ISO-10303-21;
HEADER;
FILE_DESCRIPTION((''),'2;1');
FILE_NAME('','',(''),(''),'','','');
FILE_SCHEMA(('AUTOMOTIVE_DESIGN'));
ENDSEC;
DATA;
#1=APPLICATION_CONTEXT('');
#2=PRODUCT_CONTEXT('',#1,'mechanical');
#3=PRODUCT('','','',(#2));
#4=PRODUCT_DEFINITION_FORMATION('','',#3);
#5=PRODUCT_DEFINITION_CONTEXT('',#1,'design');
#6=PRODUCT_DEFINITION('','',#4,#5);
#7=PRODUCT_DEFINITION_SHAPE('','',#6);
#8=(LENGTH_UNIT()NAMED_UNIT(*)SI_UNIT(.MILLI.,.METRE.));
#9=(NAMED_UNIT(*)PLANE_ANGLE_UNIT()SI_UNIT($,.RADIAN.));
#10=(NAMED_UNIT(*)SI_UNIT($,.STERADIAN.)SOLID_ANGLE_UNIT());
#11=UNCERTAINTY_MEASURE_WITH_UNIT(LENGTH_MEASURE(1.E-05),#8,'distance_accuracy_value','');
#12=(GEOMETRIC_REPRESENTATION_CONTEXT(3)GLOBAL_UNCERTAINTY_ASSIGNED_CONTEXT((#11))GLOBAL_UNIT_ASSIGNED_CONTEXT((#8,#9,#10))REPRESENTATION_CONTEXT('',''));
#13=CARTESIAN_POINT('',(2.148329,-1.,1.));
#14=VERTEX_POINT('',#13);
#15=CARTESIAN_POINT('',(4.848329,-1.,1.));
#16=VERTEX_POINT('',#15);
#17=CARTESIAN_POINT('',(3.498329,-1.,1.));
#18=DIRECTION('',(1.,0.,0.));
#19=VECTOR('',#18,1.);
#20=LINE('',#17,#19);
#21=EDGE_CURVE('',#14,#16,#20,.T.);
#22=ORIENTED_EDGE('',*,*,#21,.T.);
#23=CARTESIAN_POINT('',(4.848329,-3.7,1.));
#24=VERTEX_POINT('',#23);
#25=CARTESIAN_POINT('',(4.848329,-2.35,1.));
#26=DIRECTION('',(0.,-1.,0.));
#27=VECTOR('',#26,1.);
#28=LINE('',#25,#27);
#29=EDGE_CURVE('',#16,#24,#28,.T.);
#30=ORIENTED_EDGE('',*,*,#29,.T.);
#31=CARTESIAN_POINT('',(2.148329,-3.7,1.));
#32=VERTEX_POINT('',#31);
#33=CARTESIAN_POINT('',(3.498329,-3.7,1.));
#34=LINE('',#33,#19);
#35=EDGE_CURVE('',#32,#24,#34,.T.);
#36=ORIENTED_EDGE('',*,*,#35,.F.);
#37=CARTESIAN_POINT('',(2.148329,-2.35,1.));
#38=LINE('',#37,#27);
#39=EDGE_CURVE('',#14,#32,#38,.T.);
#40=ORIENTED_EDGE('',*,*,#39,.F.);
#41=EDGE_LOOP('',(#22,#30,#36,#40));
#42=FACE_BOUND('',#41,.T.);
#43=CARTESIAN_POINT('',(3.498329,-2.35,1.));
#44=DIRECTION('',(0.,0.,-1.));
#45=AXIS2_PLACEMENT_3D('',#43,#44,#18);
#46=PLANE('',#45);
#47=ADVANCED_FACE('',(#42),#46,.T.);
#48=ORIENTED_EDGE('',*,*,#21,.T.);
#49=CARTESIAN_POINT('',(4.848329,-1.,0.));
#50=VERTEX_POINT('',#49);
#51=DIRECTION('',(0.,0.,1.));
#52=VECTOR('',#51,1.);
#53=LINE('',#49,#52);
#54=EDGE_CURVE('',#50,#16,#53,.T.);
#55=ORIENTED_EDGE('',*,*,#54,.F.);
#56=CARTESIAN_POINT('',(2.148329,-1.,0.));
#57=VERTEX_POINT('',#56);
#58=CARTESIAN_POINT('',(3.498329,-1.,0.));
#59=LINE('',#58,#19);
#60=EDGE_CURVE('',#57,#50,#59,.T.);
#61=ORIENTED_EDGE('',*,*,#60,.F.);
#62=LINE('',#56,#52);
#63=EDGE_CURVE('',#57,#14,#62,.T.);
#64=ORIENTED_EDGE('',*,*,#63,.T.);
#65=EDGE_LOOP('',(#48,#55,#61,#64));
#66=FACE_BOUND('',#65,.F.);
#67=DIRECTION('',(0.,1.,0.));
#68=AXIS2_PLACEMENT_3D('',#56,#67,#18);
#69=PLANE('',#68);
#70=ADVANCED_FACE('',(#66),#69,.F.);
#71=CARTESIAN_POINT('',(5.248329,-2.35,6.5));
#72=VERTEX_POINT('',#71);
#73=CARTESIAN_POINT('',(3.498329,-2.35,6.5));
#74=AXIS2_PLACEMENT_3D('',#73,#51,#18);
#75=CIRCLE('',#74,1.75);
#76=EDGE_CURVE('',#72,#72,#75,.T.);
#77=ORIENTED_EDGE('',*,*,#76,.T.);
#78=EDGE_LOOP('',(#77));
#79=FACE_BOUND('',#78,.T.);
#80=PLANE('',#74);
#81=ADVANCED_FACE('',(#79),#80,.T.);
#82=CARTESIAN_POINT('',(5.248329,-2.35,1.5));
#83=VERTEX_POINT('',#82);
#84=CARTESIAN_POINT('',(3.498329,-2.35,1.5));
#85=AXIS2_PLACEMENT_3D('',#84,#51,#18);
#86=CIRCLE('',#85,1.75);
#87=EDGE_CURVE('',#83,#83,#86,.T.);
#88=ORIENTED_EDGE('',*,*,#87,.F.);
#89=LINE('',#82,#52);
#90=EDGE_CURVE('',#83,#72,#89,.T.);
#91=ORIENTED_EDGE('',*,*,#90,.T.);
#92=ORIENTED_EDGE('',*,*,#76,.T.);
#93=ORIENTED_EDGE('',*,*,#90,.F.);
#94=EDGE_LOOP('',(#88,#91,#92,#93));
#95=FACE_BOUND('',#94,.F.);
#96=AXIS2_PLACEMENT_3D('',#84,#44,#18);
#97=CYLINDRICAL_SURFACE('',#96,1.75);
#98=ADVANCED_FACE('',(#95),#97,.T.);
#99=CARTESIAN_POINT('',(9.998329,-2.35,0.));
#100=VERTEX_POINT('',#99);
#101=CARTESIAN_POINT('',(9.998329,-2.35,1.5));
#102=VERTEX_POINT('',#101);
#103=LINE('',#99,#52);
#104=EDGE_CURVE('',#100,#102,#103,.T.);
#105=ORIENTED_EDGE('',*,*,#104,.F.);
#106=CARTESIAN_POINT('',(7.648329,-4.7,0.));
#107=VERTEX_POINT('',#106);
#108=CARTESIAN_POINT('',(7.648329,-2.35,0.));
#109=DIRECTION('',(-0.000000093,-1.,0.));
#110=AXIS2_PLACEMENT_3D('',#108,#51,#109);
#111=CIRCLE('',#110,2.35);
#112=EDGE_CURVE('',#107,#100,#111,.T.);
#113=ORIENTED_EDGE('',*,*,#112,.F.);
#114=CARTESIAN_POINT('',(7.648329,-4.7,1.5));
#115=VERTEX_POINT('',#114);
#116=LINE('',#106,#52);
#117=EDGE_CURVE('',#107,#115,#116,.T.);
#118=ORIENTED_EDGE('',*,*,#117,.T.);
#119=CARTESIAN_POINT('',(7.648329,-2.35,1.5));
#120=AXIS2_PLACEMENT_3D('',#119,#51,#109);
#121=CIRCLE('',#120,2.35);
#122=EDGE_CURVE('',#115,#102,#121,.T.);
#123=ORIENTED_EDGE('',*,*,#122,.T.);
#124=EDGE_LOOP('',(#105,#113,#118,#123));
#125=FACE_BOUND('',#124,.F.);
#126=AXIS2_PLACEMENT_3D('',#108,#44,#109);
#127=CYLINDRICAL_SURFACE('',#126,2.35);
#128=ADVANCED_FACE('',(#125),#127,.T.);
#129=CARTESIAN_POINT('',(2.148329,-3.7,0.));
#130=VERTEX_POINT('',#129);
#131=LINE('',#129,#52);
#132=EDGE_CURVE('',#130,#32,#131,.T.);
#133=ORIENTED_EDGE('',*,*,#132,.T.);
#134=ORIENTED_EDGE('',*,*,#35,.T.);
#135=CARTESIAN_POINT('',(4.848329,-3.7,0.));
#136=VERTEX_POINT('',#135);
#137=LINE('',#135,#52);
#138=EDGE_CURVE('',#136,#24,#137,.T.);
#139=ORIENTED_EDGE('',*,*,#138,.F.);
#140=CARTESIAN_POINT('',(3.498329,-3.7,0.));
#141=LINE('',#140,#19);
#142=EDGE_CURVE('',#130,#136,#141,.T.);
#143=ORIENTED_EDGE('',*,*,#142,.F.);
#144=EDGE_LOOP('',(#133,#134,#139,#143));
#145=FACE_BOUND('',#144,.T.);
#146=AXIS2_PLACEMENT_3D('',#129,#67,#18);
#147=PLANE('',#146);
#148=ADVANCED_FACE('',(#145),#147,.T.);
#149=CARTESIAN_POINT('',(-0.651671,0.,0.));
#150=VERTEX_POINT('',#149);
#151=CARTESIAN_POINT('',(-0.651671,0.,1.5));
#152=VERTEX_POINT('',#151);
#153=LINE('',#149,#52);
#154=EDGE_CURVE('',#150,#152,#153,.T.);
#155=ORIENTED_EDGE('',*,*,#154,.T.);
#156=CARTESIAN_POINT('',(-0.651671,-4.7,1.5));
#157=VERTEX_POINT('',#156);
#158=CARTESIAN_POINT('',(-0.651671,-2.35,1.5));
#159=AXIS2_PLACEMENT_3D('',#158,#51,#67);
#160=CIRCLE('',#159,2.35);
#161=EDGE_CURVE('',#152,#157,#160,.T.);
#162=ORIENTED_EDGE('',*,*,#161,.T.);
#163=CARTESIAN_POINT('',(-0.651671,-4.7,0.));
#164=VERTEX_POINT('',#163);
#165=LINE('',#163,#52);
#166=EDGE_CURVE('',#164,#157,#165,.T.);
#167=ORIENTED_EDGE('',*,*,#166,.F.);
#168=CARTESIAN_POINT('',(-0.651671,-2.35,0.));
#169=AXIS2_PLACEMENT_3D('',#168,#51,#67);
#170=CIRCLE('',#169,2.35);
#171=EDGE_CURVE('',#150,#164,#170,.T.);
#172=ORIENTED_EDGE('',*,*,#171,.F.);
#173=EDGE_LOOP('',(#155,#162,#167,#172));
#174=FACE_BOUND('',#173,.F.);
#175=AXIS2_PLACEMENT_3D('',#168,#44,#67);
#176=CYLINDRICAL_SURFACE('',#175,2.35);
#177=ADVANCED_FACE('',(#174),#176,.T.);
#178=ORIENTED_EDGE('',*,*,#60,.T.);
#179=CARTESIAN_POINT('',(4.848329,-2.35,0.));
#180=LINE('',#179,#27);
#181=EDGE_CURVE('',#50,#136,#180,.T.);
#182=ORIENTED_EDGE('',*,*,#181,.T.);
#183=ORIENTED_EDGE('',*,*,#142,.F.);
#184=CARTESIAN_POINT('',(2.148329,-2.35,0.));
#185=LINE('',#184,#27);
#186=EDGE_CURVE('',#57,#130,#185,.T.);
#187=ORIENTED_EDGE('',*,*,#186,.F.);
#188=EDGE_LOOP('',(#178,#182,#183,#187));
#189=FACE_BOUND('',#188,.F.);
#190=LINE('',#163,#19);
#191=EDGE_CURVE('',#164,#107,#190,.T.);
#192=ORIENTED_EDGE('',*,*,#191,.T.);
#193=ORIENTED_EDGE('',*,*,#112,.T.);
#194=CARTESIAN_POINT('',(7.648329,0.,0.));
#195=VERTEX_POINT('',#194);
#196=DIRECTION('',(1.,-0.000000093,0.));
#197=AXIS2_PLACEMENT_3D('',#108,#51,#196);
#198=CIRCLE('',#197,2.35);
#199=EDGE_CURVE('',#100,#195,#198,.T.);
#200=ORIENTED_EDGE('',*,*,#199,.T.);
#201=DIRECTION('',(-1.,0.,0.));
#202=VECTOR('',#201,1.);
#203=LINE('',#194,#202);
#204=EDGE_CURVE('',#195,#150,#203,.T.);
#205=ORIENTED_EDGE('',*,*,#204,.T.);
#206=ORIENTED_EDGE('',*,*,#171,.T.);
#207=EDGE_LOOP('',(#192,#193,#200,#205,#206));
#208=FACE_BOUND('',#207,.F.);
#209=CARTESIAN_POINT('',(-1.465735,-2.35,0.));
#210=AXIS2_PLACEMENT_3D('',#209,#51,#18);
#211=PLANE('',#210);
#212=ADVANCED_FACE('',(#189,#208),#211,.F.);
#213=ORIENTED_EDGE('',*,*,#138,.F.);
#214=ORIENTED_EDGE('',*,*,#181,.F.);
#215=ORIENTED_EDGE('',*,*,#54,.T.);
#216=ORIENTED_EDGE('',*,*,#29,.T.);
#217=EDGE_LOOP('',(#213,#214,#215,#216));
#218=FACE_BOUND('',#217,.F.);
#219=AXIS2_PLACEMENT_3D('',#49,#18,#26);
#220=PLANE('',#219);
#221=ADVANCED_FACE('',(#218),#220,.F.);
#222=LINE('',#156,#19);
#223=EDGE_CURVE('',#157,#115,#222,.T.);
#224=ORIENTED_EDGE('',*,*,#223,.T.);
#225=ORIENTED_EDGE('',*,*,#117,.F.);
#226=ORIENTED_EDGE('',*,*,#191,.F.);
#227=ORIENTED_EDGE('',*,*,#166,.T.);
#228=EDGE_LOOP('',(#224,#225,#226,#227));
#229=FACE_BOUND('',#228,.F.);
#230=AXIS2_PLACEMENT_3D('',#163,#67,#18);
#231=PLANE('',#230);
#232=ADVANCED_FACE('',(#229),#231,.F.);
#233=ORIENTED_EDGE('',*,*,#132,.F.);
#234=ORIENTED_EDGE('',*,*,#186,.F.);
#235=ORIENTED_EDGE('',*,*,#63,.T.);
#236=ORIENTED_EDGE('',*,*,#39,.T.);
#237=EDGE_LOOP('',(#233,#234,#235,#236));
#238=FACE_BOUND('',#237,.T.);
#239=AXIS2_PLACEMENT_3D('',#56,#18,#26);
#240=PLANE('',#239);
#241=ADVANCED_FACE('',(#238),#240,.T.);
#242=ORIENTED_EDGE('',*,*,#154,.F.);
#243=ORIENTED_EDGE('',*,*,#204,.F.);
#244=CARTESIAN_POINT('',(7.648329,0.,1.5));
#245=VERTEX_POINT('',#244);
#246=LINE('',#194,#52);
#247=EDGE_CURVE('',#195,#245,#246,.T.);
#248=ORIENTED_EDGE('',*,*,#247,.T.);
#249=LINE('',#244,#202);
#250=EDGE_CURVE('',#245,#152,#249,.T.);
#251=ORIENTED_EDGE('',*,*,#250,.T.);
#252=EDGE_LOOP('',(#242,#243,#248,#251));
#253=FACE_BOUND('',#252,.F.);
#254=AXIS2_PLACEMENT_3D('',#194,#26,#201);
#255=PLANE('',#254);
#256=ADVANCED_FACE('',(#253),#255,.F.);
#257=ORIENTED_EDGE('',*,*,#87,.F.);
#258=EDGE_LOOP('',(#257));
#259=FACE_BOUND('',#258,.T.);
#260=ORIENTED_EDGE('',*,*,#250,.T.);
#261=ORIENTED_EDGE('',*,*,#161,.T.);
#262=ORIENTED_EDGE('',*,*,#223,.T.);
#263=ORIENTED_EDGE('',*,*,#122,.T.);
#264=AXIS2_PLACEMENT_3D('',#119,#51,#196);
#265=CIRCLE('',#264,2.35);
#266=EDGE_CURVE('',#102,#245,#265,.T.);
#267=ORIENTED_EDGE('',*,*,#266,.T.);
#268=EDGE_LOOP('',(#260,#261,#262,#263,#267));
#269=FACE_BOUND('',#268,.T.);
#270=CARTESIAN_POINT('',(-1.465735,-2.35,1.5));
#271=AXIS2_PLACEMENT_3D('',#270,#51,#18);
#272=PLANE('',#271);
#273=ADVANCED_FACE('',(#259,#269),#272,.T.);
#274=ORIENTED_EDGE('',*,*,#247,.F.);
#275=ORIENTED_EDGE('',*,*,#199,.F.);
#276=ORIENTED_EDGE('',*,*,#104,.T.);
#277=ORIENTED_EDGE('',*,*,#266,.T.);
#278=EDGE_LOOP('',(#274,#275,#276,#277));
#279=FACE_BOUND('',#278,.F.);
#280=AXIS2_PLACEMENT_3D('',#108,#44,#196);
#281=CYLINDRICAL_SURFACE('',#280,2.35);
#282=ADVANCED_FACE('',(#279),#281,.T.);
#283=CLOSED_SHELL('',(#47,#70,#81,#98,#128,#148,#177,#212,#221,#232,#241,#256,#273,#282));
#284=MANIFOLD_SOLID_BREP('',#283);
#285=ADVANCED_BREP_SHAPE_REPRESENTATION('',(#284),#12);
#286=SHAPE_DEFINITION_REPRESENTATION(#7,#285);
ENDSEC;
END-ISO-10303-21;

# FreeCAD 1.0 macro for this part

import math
import FreeCAD as App
import Part
import Sketcher
from FreeCAD import Vector
Q = App.Units.Quantity


def add_polygon(sketch, points):
    """Adds a closed chain of lines whose ends are joined by coincident constraints."""
    first, n = sketch.GeometryCount, len(points)
    for a, b in zip(points, points[1:] + points[:1]):
        sketch.addGeometry(Part.LineSegment(App.Vector(*a, 0), App.Vector(*b, 0)), False)
    for i in range(n):
        sketch.addConstraint(Sketcher.Constraint("Coincident", first + i, 2, first + (i + 1) % n, 1))

doc = App.newDocument("Part")
body = doc.addObject("PartDesign::Body", "Body")

sketch1 = body.newObject("Sketcher::SketchObject", "Sketch")
sketch1.AttachmentSupport = (doc.getObject("XY_Plane"), [""])
sketch1.MapMode = "FlatFace"
sketch1.addGeometry([
    Part.ArcOfCircle(Part.Circle(Vector(-0.7, -2.4, 0), Vector(0, 0, 1), 2.4), math.radians(90), math.radians(270)),
    Part.LineSegment(Vector(-0.7, -4.7, 0), Vector(7.6, -4.7, 0)),
    Part.ArcOfCircle(Part.Circle(Vector(7.6, -2.4, 0), Vector(0, 0, 1), 2.3), math.radians(-90), math.radians(0)),
    Part.ArcOfCircle(Part.Circle(Vector(7.6, -2.3, 0), Vector(0, 0, 1), 2.3), math.radians(0), math.radians(90)),
    Part.LineSegment(Vector(7.6, 0, 0), Vector(-0.7, 0, 0)),
], False)
sketch1.addConstraint([
    Sketcher.Constraint("Tangent", 0, 2, 1, 1),
    Sketcher.Constraint("Tangent", 1, 2, 2, 1),
    Sketcher.Constraint("Tangent", 2, 2, 3, 1),
    Sketcher.Constraint("Tangent", 3, 2, 4, 1),
    Sketcher.Constraint("Tangent", 4, 2, 0, 1),
    Sketcher.Constraint("Horizontal", 1),
    Sketcher.Constraint("Horizontal", 4),
    Sketcher.Constraint("Equal", 0, 2),
    Sketcher.Constraint("PointOnObject", 3, 2, -1),
    Sketcher.Constraint("Horizontal", 3, 3, 2, 2),
    Sketcher.Constraint("Radius", 0, Q("2.35 mm")),
    Sketcher.Constraint("DistanceX", 1, 1, 1, 2, Q("8.3 mm")),
    Sketcher.Constraint("DistanceX", 0, 3, -1, 1, Q("0.651671 mm")),
])
pad1 = body.newObject("PartDesign::Pad", "Pad")
pad1.Profile = sketch1
pad1.Length = 1.5

sketch2 = body.newObject("Sketcher::SketchObject", "Sketch001")
sketch2.AttachmentSupport = (doc.getObject("XY_Plane"), [""])
sketch2.MapMode = "FlatFace"
sketch2.AttachmentOffset = App.Placement(Vector(0, 0, 1.5), App.Rotation())
sketch2.addGeometry(Part.Circle(Vector(3.5, -2.4, 0), Vector(0, 0, 1), 1.8), False)
sketch2.addConstraint([
    Sketcher.Constraint("Diameter", 0, Q("3.5 mm")),
    Sketcher.Constraint("DistanceY", 0, 3, -1, 1, Q("2.35 mm")),
    Sketcher.Constraint("DistanceX", -1, 1, 0, 3, Q("3.498329 mm")),
])
pad2 = body.newObject("PartDesign::Pad", "Pad001")
pad2.Profile = sketch2
pad2.Length = 5

sketch3 = body.newObject("Sketcher::SketchObject", "Sketch002")
sketch3.AttachmentSupport = (doc.getObject("XY_Plane"), [""])
sketch3.MapMode = "FlatFace"
add_polygon(sketch3, [(2.1, -3.7), (2.1, -1), (4.8, -1), (4.8, -3.7)])
sketch3.addConstraint([
    Sketcher.Constraint("Vertical", 0),
    Sketcher.Constraint("Horizontal", 1),
    Sketcher.Constraint("Vertical", 2),
    Sketcher.Constraint("Horizontal", 3),
    Sketcher.Constraint("Equal", 3, 0),
    Sketcher.Constraint("DistanceX", 1, 1, 1, 2, Q("2.7 mm")),
    Sketcher.Constraint("DistanceY", 0, 2, -1, 1, Q("1 mm")),
    Sketcher.Constraint("DistanceX", -1, 1, 0, 2, Q("2.148329 mm")),
])
pocket1 = body.newObject("PartDesign::Pocket", "Pocket")
pocket1.Profile = sketch3
pocket1.Length = 1
pocket1.Reversed = True

doc.recompute()
